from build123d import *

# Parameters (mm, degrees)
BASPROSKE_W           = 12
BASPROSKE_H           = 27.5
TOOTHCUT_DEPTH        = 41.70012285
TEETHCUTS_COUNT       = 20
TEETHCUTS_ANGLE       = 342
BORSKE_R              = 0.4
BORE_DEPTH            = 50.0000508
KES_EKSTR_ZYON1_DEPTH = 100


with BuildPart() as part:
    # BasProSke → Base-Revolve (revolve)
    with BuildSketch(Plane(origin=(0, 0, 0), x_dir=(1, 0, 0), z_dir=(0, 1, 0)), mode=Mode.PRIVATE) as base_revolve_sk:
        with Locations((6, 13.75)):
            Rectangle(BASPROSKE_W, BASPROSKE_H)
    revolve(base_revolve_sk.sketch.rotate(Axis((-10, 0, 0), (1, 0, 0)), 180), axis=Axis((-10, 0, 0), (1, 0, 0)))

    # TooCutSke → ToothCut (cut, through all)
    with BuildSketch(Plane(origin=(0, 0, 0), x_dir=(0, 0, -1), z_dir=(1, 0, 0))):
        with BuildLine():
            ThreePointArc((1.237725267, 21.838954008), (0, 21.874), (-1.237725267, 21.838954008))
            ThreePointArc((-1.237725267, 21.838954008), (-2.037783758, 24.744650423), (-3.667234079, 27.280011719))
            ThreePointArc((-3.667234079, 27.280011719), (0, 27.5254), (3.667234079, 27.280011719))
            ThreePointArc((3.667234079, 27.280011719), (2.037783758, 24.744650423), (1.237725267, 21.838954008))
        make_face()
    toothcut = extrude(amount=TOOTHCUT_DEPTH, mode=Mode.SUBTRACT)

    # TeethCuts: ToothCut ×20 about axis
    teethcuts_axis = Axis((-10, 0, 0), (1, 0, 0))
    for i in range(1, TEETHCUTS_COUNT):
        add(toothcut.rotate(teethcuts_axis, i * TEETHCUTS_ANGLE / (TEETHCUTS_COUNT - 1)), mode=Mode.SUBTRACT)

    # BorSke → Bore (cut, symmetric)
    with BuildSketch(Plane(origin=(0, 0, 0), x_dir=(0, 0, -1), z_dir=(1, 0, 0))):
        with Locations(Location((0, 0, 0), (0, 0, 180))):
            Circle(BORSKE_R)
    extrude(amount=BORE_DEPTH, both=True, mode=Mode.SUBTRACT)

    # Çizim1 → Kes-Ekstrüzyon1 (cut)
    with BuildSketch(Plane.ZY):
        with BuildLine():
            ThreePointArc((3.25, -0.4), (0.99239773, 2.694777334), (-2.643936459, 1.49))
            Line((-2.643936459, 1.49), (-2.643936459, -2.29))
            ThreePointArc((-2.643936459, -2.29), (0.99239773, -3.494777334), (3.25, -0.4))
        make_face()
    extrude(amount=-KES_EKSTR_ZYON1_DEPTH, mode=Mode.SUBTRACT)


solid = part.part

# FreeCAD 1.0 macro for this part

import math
import FreeCAD as App
import Part
import Sketcher


def add_polygon(sketch, points):
    """Adds a closed chain of lines whose ends are joined by coincident constraints."""
    first, n = sketch.GeometryCount, len(points)
    for a, b in zip(points, points[1:] + points[:1]):
        sketch.addGeometry(Part.LineSegment(App.Vector(*a, 0), App.Vector(*b, 0)), False)
    for i in range(n):
        sketch.addConstraint(Sketcher.Constraint("Coincident", first + i, 2, first + (i + 1) % n, 1))

doc = App.newDocument("Part")
body = doc.addObject("PartDesign::Body", "Body")

# Sketch on XZ plane
sketch1 = body.newObject("Sketcher::SketchObject", "Sketch")
sketch1.AttachmentSupport = (doc.getObject("XZ_Plane"), [""])
sketch1.MapMode = "FlatFace"
add_polygon(sketch1, [(0, -28), (0, 0), (12, 0), (12, -28)])  # lines 0-3
sketch1.addConstraint(Sketcher.Constraint("Vertical", 0))
sketch1.addConstraint(Sketcher.Constraint("Horizontal", 1))
sketch1.addConstraint(Sketcher.Constraint("Vertical", 2))
sketch1.addConstraint(Sketcher.Constraint("Horizontal", 3))
sketch1.addConstraint(Sketcher.Constraint("Coincident", 0, 2, -1, 1))
sketch1.addConstraint(Sketcher.Constraint("DistanceX", 1, 1, 1, 2, 12.0))
sketch1.addConstraint(Sketcher.Constraint("DistanceY", 0, 1, 0, 2, 27.5))
revolution = body.newObject("PartDesign::Revolution", "Revolution")
revolution.Profile = sketch1
revolution.ReferenceAxis = (sketch1, ["H_Axis"])
revolution.Angle = 360

# Sketch on YZ plane
sketch2 = body.newObject("Sketcher::SketchObject", "Sketch001")
sketch2.AttachmentSupport = (doc.getObject("YZ_Plane"), [""])
sketch2.MapMode = "FlatFace"
sketch2.addGeometry(Part.ArcOfCircle(Part.Circle(App.Vector(0, 0, 0), App.Vector(0, 0, 1), 21.9), math.radians(-3.24), math.radians(3.24)), False)
sketch2.addGeometry(Part.ArcOfCircle(Part.Circle(App.Vector(20.7, -11.2, 0), App.Vector(0, 0, 1), 10), math.radians(49), math.radians(83)), False)
sketch2.addGeometry(Part.ArcOfCircle(Part.Circle(App.Vector(0, 0, 0), App.Vector(0, 0, 1), 27.5), math.radians(-7.66), math.radians(7.66)), False)
sketch2.addGeometry(Part.ArcOfCircle(Part.Circle(App.Vector(20.7, 11.2, 0), App.Vector(0, 0, 1), 10), math.radians(-83), math.radians(-49)), False)
sketch2.addConstraint(Sketcher.Constraint("Coincident", 0, 1, 1, 2))
sketch2.addConstraint(Sketcher.Constraint("Coincident", 1, 1, 2, 1))
sketch2.addConstraint(Sketcher.Constraint("Coincident", 2, 2, 3, 2))
sketch2.addConstraint(Sketcher.Constraint("Coincident", 3, 1, 0, 2))
sketch2.addConstraint(Sketcher.Constraint("Coincident", 0, 3, -1, 1))
sketch2.addConstraint(Sketcher.Constraint("Coincident", 2, 3, -1, 1))
sketch2.addConstraint(Sketcher.Constraint("Equal", 1, 3))
sketch2.addConstraint(Sketcher.Constraint("Symmetric", 1, 3, 3, 3, -1))
sketch2.addConstraint(Sketcher.Constraint("Radius", 1, 10.0))
sketch2.addConstraint(Sketcher.Constraint("Radius", 0, 21.874))
sketch2.addConstraint(Sketcher.Constraint("Radius", 2, 27.5254))
sketch2.addConstraint(Sketcher.Constraint("DistanceX", -1, 1, 1, 3, 20.667491))
sketch2.addConstraint(Sketcher.Constraint("DistanceY", 1, 3, -1, 1, 11.168872))
pocket1 = body.newObject("PartDesign::Pocket", "Pocket")
pocket1.Profile = sketch2
pocket1.Type = "ThroughAll"
pocket1.Reversed = True
doc.recompute()

polarpattern = body.newObject("PartDesign::PolarPattern", "PolarPattern")
polarpattern.Originals = [pocket1]
polarpattern.Axis = (doc.getObject("X_Axis"), [""])
polarpattern.Angle = 360
polarpattern.Occurrences = 20
body.Tip = polarpattern

# Sketch on YZ plane
sketch3 = body.newObject("Sketcher::SketchObject", "Sketch002")
sketch3.AttachmentSupport = (doc.getObject("YZ_Plane"), [""])
sketch3.MapMode = "FlatFace"
sketch3.addGeometry(Part.Circle(App.Vector(0, 0, 0), App.Vector(0, 0, 1), 0.4), False)
sketch3.addConstraint(Sketcher.Constraint("Coincident", 0, 3, -1, 1))
sketch3.addConstraint(Sketcher.Constraint("Diameter", 0, 0.8))
pocket2 = body.newObject("PartDesign::Pocket", "Pocket001")
pocket2.Profile = sketch3
pocket2.Length = 100.000102
pocket2.Midplane = True

# Sketch on YZ plane
sketch4 = body.newObject("Sketcher::SketchObject", "Sketch003")
sketch4.AttachmentSupport = (doc.getObject("YZ_Plane"), [""])
sketch4.MapMode = "FlatFace"
sketch4.addGeometry(Part.ArcOfCircle(Part.Circle(App.Vector(-0.4, 0, 0), App.Vector(0, 0, 1), 3.2), math.radians(-54), math.radians(90)), False)
sketch4.addGeometry(Part.LineSegment(App.Vector(1.5, -2.6, 0), App.Vector(-2.3, -2.6, 0)), False)
sketch4.addGeometry(Part.ArcOfCircle(Part.Circle(App.Vector(-0.4, 0, 0), App.Vector(0, 0, 1), 3.2), math.radians(90), math.radians(234)), False)
sketch4.addConstraint(Sketcher.Constraint("Coincident", 0, 1, 1, 1))
sketch4.addConstraint(Sketcher.Constraint("Coincident", 1, 2, 2, 2))
sketch4.addConstraint(Sketcher.Constraint("Tangent", 2, 1, 0, 2))
sketch4.addConstraint(Sketcher.Constraint("Horizontal", 1))
sketch4.addConstraint(Sketcher.Constraint("Equal", 0, 2))
sketch4.addConstraint(Sketcher.Constraint("PointOnObject", 0, 3, -1))
sketch4.addConstraint(Sketcher.Constraint("Vertical", 0, 3, 2, 1))
sketch4.addConstraint(Sketcher.Constraint("Radius", 0, 3.25))
sketch4.addConstraint(Sketcher.Constraint("DistanceX", 1, 2, 1, 1, 3.78))
sketch4.addConstraint(Sketcher.Constraint("DistanceX", 0, 3, -1, 1, 0.4))
pocket3 = body.newObject("PartDesign::Pocket", "Pocket002")
pocket3.Profile = sketch4
pocket3.Length = 100
pocket3.Reversed = True

doc.recompute()
